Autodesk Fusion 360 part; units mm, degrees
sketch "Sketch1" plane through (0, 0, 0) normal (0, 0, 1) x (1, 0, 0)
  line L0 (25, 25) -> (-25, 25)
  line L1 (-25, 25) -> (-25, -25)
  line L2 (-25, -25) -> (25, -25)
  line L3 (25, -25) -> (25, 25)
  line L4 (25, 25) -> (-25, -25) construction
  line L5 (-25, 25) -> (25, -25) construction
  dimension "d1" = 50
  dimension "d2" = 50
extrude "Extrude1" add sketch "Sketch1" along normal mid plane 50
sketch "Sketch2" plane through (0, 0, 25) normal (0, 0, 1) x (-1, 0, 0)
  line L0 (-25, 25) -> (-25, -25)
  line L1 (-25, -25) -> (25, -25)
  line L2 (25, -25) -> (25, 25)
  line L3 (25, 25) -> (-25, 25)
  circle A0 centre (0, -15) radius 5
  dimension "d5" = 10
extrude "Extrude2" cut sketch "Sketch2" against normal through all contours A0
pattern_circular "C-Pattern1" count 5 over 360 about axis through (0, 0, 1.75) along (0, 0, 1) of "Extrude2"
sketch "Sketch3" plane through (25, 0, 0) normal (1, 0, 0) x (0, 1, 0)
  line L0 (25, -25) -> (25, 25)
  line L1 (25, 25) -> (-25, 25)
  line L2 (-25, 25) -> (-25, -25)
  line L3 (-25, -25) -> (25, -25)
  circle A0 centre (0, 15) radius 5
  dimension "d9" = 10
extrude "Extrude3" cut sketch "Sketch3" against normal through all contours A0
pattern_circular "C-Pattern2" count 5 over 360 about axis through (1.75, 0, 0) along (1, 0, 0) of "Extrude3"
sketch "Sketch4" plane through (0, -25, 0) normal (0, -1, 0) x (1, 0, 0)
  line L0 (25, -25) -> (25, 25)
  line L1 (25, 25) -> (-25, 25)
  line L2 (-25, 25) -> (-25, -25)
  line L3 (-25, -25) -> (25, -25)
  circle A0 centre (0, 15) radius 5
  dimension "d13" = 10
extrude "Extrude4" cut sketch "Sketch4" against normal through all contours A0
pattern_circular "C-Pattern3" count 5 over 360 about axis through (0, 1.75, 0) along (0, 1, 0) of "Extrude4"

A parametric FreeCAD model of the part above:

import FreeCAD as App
import Part
import Sketcher

V = App.Vector
Q = App.Units.Quantity

doc = App.newDocument("Part")
body = doc.addObject("PartDesign::Body", "Body")

sketch1 = body.newObject("Sketcher::SketchObject", "Sketch")
sketch1.AttachmentSupport = (doc.getObject("XY_Plane"), [""])
sketch1.MapMode = "FlatFace"
sketch1.addGeometry(Part.LineSegment(V(25, -25, 0), V(25, 25, 0)), False)
sketch1.addGeometry(Part.LineSegment(V(25, 25, 0), V(-25, 25, 0)), False)
sketch1.addGeometry(Part.LineSegment(V(-25, 25, 0), V(-25, -25, 0)), False)
sketch1.addGeometry(Part.LineSegment(V(-25, -25, 0), V(25, -25, 0)), False)
sketch1.addConstraint(Sketcher.Constraint("Coincident", 0, 2, 1, 1))
sketch1.addConstraint(Sketcher.Constraint("Coincident", 1, 2, 2, 1))
sketch1.addConstraint(Sketcher.Constraint("Coincident", 2, 2, 3, 1))
sketch1.addConstraint(Sketcher.Constraint("Coincident", 3, 2, 0, 1))
sketch1.addConstraint(Sketcher.Constraint("Vertical", 0))
sketch1.addConstraint(Sketcher.Constraint("Horizontal", 1))
sketch1.addConstraint(Sketcher.Constraint("Vertical", 2))
sketch1.addConstraint(Sketcher.Constraint("Horizontal", 3))
sketch1.addConstraint(Sketcher.Constraint("Symmetric", 0, 2, 2, 2, -1, 1))
sketch1.addConstraint(Sketcher.Constraint("Equal", 3, 0))
sketch1.addConstraint(Sketcher.Constraint("DistanceX", 1, 2, 1, 1, Q("50 mm")))
pad1 = body.newObject("PartDesign::Pad", "Pad")
pad1.Profile = sketch1
pad1.Length = 50
pad1.Midplane = True

sketch2 = body.newObject("Sketcher::SketchObject", "Sketch001")
sketch2.AttachmentSupport = (doc.getObject("XY_Plane"), [""])
sketch2.MapMode = "FlatFace"
sketch2.AttachmentOffset = App.Placement(V(0, 0, 25), App.Rotation())
sketch2.addGeometry(Part.Circle(V(0, 15, 0), V(0, 0, 1), 5), False)
sketch2.addConstraint(Sketcher.Constraint("PointOnObject", 0, 3, -2))
sketch2.addConstraint(Sketcher.Constraint("Diameter", 0, Q("10 mm")))
sketch2.addConstraint(Sketcher.Constraint("DistanceY", -1, 1, 0, 3, Q("15 mm")))
pocket1 = body.newObject("PartDesign::Pocket", "Pocket")
pocket1.Profile = sketch2
pocket1.Type = "ThroughAll"
doc.recompute()

polarpattern = body.newObject("PartDesign::PolarPattern", "PolarPattern")
polarpattern.Originals = [pocket1]
polarpattern.Axis = (doc.getObject("Z_Axis"), [""])
polarpattern.Angle = 360
polarpattern.Occurrences = 5
body.Tip = polarpattern

sketch3 = body.newObject("Sketcher::SketchObject", "Sketch002")
sketch3.AttachmentSupport = (doc.getObject("YZ_Plane"), [""])
sketch3.MapMode = "FlatFace"
sketch3.AttachmentOffset = App.Placement(V(0, 0, 25), App.Rotation())
sketch3.addGeometry(Part.Circle(V(0, 15, 0), V(0, 0, 1), 5), False)
sketch3.addConstraint(Sketcher.Constraint("PointOnObject", 0, 3, -2))
sketch3.addConstraint(Sketcher.Constraint("Diameter", 0, Q("10 mm")))
sketch3.addConstraint(Sketcher.Constraint("DistanceY", -1, 1, 0, 3, Q("15 mm")))
pocket2 = body.newObject("PartDesign::Pocket", "Pocket001")
pocket2.Profile = sketch3
pocket2.Type = "ThroughAll"
doc.recompute()

polarpattern2 = body.newObject("PartDesign::PolarPattern", "PolarPattern001")
polarpattern2.Originals = [pocket2]
polarpattern2.Axis = (doc.getObject("X_Axis"), [""])
polarpattern2.Angle = 360
polarpattern2.Occurrences = 5
body.Tip = polarpattern2

sketch4 = body.newObject("Sketcher::SketchObject", "Sketch003")
sketch4.AttachmentSupport = (doc.getObject("XZ_Plane"), [""])
sketch4.MapMode = "FlatFace"
sketch4.AttachmentOffset = App.Placement(V(0, 0, 25), App.Rotation())
sketch4.addGeometry(Part.Circle(V(0, 15, 0), V(0, 0, 1), 5), False)
sketch4.addConstraint(Sketcher.Constraint("PointOnObject", 0, 3, -2))
sketch4.addConstraint(Sketcher.Constraint("Diameter", 0, Q("10 mm")))
sketch4.addConstraint(Sketcher.Constraint("DistanceY", -1, 1, 0, 3, Q("15 mm")))
pocket3 = body.newObject("PartDesign::Pocket", "Pocket002")
pocket3.Profile = sketch4
pocket3.Type = "ThroughAll"
doc.recompute()

polarpattern3 = body.newObject("PartDesign::PolarPattern", "PolarPattern002")
polarpattern3.Originals = [pocket3]
polarpattern3.Axis = (doc.getObject("Y_Axis"), [""])
polarpattern3.Angle = 360
polarpattern3.Occurrences = 5
body.Tip = polarpattern3

doc.recompute()
